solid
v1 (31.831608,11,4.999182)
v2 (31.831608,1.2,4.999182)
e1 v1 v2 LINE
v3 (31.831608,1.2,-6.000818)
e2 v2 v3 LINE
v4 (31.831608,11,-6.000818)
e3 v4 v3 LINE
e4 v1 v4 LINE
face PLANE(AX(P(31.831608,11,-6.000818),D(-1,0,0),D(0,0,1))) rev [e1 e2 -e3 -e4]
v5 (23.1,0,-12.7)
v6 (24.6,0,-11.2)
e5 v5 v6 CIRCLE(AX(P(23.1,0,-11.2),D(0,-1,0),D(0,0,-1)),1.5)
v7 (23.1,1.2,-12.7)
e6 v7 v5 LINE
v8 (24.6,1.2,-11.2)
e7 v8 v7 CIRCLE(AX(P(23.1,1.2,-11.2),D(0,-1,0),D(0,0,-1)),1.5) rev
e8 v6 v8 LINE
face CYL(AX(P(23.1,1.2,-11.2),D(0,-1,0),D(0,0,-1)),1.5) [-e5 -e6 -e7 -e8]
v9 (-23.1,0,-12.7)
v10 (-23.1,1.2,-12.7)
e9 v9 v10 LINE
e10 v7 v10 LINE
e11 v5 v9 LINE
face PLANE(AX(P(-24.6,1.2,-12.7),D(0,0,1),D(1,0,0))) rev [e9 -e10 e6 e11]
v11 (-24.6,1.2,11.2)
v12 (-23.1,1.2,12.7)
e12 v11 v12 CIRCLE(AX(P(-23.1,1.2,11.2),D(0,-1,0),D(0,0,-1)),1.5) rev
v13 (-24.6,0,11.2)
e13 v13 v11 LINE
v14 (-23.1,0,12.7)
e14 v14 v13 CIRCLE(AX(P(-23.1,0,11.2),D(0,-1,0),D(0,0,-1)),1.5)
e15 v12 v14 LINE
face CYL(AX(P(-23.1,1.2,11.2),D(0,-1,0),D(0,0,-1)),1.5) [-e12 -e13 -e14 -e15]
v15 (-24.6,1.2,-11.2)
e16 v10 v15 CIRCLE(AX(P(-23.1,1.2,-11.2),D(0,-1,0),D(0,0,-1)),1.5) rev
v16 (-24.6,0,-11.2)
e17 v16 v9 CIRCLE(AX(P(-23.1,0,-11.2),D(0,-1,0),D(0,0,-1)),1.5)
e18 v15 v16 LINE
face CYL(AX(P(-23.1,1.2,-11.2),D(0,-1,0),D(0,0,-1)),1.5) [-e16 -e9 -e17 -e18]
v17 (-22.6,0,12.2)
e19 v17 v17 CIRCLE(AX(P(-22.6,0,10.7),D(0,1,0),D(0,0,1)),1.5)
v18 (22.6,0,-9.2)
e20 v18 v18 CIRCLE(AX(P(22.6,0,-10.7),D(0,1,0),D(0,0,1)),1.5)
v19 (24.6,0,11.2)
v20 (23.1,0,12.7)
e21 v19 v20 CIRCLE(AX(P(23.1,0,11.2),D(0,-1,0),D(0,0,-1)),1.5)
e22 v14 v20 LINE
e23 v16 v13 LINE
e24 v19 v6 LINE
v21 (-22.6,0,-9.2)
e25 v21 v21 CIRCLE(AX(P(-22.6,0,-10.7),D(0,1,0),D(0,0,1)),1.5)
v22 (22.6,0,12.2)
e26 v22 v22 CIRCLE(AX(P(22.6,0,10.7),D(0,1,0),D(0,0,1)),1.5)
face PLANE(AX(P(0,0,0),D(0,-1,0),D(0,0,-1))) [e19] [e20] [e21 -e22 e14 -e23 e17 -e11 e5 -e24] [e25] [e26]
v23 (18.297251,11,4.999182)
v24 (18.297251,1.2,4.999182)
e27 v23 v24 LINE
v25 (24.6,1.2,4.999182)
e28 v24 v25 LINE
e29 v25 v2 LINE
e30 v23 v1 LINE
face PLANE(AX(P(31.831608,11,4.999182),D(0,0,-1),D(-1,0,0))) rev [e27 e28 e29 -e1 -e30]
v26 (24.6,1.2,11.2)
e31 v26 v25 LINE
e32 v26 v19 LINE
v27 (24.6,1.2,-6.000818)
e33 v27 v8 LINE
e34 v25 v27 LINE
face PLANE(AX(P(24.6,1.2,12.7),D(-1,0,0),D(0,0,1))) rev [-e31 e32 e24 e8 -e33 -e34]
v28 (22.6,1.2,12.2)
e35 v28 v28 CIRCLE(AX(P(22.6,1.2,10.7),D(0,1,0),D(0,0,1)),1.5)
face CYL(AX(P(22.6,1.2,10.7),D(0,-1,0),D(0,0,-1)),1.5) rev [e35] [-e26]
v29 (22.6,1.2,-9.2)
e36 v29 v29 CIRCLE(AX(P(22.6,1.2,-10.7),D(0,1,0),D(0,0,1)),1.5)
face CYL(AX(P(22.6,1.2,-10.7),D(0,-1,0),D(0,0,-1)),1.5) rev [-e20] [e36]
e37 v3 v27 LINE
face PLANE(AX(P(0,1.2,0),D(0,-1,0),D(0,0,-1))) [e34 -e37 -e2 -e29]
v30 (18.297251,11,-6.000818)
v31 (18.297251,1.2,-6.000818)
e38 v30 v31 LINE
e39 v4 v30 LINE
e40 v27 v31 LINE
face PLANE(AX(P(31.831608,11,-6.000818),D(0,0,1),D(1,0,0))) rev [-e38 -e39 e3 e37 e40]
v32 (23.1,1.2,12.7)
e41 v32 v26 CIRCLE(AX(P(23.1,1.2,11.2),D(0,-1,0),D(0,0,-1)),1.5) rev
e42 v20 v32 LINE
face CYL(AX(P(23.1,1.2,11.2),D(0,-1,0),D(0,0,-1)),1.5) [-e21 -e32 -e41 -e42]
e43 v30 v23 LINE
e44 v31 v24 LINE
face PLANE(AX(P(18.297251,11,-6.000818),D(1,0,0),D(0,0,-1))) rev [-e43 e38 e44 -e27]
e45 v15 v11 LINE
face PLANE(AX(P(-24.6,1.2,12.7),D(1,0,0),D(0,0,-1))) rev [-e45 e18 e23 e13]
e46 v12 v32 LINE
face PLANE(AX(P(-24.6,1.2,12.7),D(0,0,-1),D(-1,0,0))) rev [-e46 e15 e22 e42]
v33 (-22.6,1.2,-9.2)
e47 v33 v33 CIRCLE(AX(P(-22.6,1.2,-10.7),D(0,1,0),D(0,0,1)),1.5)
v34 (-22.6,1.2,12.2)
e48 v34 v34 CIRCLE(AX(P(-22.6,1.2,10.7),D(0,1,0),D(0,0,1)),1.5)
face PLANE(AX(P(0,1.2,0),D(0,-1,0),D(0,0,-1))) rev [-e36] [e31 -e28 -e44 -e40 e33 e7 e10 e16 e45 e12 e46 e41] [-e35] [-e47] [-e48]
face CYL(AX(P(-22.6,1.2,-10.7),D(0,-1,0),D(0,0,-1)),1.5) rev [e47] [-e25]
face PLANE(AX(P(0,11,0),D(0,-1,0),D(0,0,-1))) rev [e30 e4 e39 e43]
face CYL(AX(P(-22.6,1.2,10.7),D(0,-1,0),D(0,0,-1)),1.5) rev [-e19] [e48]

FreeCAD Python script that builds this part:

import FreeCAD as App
import Part
import Sketcher

V = App.Vector


def edges_at(feature, points):
    """Names of the edges that pass closest to the given points."""
    edges = feature.Shape.Edges
    near = lambda p: min(range(len(edges)), key=lambda i: edges[i].distToShape(Part.Vertex(*p))[0])
    return sorted({f"Edge{near(p) + 1}" for p in points})


def add_polygon(sketch, points):
    """Adds a closed chain of lines whose ends are joined by coincident constraints."""
    first, n = sketch.GeometryCount, len(points)
    for a, b in zip(points, points[1:] + points[:1]):
        sketch.addGeometry(Part.LineSegment(App.Vector(*a, 0), App.Vector(*b, 0)), False)
    for i in range(n):
        sketch.addConstraint(Sketcher.Constraint("Coincident", first + i, 2, first + (i + 1) % n, 1))

doc = App.newDocument("Part")
body = doc.addObject("PartDesign::Body", "Body")

sketch1 = body.newObject("Sketcher::SketchObject", "Sketch")
sketch1.AttachmentSupport = (doc.getObject("XZ_Plane"), [""])
sketch1.MapMode = "FlatFace"
add_polygon(sketch1, [(-24.6, -12.7), (-24.6, 12.7), (24.6, 12.7), (24.6, -12.7)])
sketch1.addGeometry(Part.Circle(V(-22.6, 10.7, 0), V(0, 0, 1), 1.5), False)
sketch1.addGeometry(Part.Circle(V(22.6, 10.7, 0), V(0, 0, 1), 1.5), False)
sketch1.addGeometry(Part.Circle(V(-22.6, -10.7, 0), V(0, 0, 1), 1.5), False)
sketch1.addGeometry(Part.Circle(V(22.6, -10.7, 0), V(0, 0, 1), 1.5), False)
sketch1.addConstraint(Sketcher.Constraint("Vertical", 0))
sketch1.addConstraint(Sketcher.Constraint("Horizontal", 1))
sketch1.addConstraint(Sketcher.Constraint("Vertical", 2))
sketch1.addConstraint(Sketcher.Constraint("Horizontal", 3))
sketch1.addConstraint(Sketcher.Constraint("Equal", 4, 5))
sketch1.addConstraint(Sketcher.Constraint("Equal", 5, 6))
sketch1.addConstraint(Sketcher.Constraint("Equal", 6, 7))
sketch1.addConstraint(Sketcher.Constraint("Symmetric", 5, 3, 6, 3, -1, 1))
sketch1.addConstraint(Sketcher.Constraint("Symmetric", 4, 3, 7, 3, -1, 1))
sketch1.addConstraint(Sketcher.Constraint("Symmetric", 0, 2, 2, 2, -1, 1))
sketch1.addConstraint(Sketcher.Constraint("Symmetric", 4, 3, 5, 3, -2))
sketch1.addConstraint(Sketcher.Constraint("Diameter", 4, 3.0))
sketch1.addConstraint(Sketcher.Constraint("DistanceX", 1, 1, 1, 2, 49.2))
sketch1.addConstraint(Sketcher.Constraint("DistanceY", 0, 1, 0, 2, 25.4))
sketch1.addConstraint(Sketcher.Constraint("DistanceX", 0, 2, 4, 3, 2.0))
sketch1.addConstraint(Sketcher.Constraint("DistanceY", 4, 3, 0, 2, 2.0))
pad1 = body.newObject("PartDesign::Pad", "Pad")
pad1.Profile = sketch1
pad1.Length = 1.2
pad1.Reversed = True
doc.recompute()

fillet = body.newObject("PartDesign::Fillet", "Fillet")
fillet.Base = (pad1, edges_at(pad1, [(24.6, 0.6, 12.7)]))
fillet.Radius = 1.5
doc.recompute()

fillet2 = body.newObject("PartDesign::Fillet", "Fillet001")
fillet2.Base = (fillet, edges_at(fillet, [(-24.6, 0.6, 12.7)]))
fillet2.Radius = 1.5
doc.recompute()

fillet3 = body.newObject("PartDesign::Fillet", "Fillet002")
fillet3.Base = (fillet2, edges_at(fillet2, [(24.6, 0.6, -12.7)]))
fillet3.Radius = 1.5
doc.recompute()

fillet4 = body.newObject("PartDesign::Fillet", "Fillet003")
fillet4.Base = (fillet3, edges_at(fillet3, [(-24.6, 0.6, -12.7)]))
fillet4.Radius = 1.5

sketch2 = body.newObject("Sketcher::SketchObject", "Sketch001")
sketch2.AttachmentSupport = (doc.getObject("XZ_Plane"), [""])
sketch2.MapMode = "FlatFace"
sketch2.AttachmentOffset = App.Placement(V(0, 0, -1.2), App.Rotation())
add_polygon(sketch2, [(18.297251, -6.000818), (18.297251, 4.999182), (31.831608, 4.999182), (31.831608, -6.000818)])
sketch2.addConstraint(Sketcher.Constraint("Vertical", 0))
sketch2.addConstraint(Sketcher.Constraint("Horizontal", 1))
sketch2.addConstraint(Sketcher.Constraint("Vertical", 2))
sketch2.addConstraint(Sketcher.Constraint("Horizontal", 3))
sketch2.addConstraint(Sketcher.Constraint("DistanceY", 0, 1, 0, 2, 11.0))
sketch2.addConstraint(Sketcher.Constraint("DistanceX", 1, 1, 1, 2, 13.534357))
sketch2.addConstraint(Sketcher.Constraint("DistanceX", -1, 1, 0, 2, 18.297251))
sketch2.addConstraint(Sketcher.Constraint("DistanceY", -1, 1, 0, 2, 4.999182))
pad2 = body.newObject("PartDesign::Pad", "Pad001")
pad2.Profile = sketch2
pad2.Length = 9.8
pad2.Reversed = True

doc.recompute()
